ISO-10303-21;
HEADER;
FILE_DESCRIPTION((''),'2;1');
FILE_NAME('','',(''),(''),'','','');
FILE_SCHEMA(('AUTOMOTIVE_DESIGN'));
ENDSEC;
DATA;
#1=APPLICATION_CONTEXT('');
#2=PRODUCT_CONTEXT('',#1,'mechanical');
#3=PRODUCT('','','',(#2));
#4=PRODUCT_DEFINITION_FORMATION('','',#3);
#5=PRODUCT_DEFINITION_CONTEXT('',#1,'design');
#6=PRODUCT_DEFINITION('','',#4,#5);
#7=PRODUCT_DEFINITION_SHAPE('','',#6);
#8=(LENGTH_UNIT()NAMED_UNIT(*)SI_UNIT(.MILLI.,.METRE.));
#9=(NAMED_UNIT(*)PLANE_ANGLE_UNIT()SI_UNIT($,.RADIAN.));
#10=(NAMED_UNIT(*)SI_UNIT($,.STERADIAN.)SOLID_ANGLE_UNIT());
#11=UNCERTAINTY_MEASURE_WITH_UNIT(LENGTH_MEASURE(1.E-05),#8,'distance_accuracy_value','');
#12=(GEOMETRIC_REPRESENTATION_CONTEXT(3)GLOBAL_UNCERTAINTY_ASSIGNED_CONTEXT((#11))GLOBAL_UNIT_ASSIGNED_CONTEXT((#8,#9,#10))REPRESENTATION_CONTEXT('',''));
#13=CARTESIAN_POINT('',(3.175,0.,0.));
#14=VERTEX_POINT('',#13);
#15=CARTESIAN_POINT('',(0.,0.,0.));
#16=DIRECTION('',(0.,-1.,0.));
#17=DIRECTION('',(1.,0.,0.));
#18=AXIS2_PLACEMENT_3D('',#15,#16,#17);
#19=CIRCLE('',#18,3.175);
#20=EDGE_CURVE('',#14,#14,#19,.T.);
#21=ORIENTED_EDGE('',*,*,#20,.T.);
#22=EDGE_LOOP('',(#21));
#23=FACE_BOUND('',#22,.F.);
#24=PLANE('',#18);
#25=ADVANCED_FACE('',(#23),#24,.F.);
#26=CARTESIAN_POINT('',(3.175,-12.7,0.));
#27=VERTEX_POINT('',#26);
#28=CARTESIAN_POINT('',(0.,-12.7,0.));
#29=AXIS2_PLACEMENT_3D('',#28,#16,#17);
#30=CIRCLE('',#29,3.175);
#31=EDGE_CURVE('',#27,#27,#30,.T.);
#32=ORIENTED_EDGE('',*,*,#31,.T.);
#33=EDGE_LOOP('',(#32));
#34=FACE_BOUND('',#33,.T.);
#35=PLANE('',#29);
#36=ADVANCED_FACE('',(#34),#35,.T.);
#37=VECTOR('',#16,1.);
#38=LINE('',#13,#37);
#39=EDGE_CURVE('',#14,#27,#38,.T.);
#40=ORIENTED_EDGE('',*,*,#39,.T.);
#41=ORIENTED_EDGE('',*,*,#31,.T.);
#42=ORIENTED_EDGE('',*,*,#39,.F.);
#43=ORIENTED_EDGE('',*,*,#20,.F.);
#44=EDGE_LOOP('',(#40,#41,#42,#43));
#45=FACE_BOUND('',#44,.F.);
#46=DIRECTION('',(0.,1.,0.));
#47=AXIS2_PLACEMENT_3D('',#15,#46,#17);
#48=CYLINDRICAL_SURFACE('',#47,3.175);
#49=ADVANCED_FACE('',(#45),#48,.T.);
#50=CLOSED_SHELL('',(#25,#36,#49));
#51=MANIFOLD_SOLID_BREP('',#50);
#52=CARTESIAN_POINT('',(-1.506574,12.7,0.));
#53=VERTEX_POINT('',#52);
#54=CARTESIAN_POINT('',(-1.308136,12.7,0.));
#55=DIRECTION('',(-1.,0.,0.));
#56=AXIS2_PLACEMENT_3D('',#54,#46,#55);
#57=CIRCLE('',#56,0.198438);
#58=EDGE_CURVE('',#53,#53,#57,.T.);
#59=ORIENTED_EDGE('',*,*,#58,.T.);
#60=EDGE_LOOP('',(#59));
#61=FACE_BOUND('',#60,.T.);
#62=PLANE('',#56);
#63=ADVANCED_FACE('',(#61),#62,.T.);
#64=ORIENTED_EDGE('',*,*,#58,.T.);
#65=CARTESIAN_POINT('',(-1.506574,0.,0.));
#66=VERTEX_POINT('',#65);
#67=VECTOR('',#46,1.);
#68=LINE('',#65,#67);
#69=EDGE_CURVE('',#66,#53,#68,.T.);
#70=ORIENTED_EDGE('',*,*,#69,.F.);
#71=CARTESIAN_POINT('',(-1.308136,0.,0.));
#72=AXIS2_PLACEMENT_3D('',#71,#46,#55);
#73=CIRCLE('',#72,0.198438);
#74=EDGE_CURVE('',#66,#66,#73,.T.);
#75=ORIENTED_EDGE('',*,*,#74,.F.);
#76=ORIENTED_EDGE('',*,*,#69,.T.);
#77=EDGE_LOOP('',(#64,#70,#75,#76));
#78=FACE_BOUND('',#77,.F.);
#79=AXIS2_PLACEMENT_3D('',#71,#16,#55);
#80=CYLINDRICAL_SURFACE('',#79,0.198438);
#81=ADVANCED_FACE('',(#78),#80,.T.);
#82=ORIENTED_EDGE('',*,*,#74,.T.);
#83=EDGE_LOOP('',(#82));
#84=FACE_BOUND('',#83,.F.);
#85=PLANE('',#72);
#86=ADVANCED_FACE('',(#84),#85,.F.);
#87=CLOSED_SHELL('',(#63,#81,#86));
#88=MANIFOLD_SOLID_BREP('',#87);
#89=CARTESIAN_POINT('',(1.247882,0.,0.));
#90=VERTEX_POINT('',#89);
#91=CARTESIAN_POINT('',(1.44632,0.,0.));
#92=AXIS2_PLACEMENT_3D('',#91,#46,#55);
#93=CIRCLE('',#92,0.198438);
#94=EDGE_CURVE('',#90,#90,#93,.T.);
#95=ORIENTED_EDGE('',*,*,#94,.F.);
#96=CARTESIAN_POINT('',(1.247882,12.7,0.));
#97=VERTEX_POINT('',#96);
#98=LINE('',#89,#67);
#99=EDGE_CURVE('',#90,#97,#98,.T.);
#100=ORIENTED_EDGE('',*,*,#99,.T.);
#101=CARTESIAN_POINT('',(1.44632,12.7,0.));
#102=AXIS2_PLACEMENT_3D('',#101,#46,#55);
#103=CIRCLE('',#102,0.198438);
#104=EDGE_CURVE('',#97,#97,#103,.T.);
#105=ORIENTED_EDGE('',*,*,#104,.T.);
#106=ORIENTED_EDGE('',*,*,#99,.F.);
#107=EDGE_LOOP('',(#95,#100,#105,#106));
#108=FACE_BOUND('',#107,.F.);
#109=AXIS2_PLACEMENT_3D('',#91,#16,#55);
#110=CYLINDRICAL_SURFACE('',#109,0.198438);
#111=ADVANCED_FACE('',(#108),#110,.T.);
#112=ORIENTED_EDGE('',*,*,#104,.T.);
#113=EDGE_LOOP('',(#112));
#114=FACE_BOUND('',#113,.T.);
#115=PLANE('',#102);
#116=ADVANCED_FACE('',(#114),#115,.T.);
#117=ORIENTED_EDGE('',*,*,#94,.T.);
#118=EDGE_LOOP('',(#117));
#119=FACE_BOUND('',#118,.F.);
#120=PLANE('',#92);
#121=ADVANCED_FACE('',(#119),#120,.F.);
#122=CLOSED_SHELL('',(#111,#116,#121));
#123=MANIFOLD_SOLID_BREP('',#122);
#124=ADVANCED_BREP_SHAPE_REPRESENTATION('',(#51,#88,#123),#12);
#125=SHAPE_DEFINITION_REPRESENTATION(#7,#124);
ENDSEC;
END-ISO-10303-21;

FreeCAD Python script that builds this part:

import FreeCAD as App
import Part
import Sketcher

V = App.Vector
Q = App.Units.Quantity

doc = App.newDocument("Part")
body = doc.addObject("PartDesign::Body", "Body")

# Sketch on XZ plane
sketch1 = body.newObject("Sketcher::SketchObject", "Sketch")
sketch1.AttachmentSupport = (doc.getObject("XZ_Plane"), [""])
sketch1.MapMode = "FlatFace"
sketch1.addGeometry(Part.Circle(V(0, 0, 0), V(0, 0, 1), 3.2), False)
sketch1.addConstraint([
    Sketcher.Constraint("Coincident", 0, 3, -1, 1),
    Sketcher.Constraint("Diameter", 0, Q("0.25 in")),
])
pad1 = body.newObject("PartDesign::Pad", "Pad")
pad1.Profile = sketch1
pad1.Length = Q("0.5 in")
body2 = doc.addObject("PartDesign::Body", "Body001")
body2.AllowCompound = True

# Sketch on XZ plane
sketch2 = body2.newObject("Sketcher::SketchObject", "Sketch001")
sketch2.AttachmentSupport = (doc.getObject("XZ_Plane001"), [""])
sketch2.MapMode = "FlatFace"
sketch2.addGeometry([
    Part.Circle(V(-1.31, 0, 0), V(0, 0, 1), 0.2),
    Part.Circle(V(1.45, 0, 0), V(0, 0, 1), 0.2),
], False)
sketch2.addConstraint([
    Sketcher.Constraint("Equal", 0, 1),
    Sketcher.Constraint("PointOnObject", 0, 3, -1),
    Sketcher.Constraint("PointOnObject", 1, 3, -1),
    Sketcher.Constraint("Diameter", 0, Q("0.015625 in")),
    Sketcher.Constraint("DistanceX", -1, 1, 1, 3, Q("1.44632 mm")),
    Sketcher.Constraint("DistanceX", 0, 3, -1, 1, Q("1.308136 mm")),
])
pad2 = body2.newObject("PartDesign::Pad", "Pad001")
pad2.Profile = sketch2
pad2.Length = Q("0.5 in")
pad2.Reversed = True

doc.recompute()
